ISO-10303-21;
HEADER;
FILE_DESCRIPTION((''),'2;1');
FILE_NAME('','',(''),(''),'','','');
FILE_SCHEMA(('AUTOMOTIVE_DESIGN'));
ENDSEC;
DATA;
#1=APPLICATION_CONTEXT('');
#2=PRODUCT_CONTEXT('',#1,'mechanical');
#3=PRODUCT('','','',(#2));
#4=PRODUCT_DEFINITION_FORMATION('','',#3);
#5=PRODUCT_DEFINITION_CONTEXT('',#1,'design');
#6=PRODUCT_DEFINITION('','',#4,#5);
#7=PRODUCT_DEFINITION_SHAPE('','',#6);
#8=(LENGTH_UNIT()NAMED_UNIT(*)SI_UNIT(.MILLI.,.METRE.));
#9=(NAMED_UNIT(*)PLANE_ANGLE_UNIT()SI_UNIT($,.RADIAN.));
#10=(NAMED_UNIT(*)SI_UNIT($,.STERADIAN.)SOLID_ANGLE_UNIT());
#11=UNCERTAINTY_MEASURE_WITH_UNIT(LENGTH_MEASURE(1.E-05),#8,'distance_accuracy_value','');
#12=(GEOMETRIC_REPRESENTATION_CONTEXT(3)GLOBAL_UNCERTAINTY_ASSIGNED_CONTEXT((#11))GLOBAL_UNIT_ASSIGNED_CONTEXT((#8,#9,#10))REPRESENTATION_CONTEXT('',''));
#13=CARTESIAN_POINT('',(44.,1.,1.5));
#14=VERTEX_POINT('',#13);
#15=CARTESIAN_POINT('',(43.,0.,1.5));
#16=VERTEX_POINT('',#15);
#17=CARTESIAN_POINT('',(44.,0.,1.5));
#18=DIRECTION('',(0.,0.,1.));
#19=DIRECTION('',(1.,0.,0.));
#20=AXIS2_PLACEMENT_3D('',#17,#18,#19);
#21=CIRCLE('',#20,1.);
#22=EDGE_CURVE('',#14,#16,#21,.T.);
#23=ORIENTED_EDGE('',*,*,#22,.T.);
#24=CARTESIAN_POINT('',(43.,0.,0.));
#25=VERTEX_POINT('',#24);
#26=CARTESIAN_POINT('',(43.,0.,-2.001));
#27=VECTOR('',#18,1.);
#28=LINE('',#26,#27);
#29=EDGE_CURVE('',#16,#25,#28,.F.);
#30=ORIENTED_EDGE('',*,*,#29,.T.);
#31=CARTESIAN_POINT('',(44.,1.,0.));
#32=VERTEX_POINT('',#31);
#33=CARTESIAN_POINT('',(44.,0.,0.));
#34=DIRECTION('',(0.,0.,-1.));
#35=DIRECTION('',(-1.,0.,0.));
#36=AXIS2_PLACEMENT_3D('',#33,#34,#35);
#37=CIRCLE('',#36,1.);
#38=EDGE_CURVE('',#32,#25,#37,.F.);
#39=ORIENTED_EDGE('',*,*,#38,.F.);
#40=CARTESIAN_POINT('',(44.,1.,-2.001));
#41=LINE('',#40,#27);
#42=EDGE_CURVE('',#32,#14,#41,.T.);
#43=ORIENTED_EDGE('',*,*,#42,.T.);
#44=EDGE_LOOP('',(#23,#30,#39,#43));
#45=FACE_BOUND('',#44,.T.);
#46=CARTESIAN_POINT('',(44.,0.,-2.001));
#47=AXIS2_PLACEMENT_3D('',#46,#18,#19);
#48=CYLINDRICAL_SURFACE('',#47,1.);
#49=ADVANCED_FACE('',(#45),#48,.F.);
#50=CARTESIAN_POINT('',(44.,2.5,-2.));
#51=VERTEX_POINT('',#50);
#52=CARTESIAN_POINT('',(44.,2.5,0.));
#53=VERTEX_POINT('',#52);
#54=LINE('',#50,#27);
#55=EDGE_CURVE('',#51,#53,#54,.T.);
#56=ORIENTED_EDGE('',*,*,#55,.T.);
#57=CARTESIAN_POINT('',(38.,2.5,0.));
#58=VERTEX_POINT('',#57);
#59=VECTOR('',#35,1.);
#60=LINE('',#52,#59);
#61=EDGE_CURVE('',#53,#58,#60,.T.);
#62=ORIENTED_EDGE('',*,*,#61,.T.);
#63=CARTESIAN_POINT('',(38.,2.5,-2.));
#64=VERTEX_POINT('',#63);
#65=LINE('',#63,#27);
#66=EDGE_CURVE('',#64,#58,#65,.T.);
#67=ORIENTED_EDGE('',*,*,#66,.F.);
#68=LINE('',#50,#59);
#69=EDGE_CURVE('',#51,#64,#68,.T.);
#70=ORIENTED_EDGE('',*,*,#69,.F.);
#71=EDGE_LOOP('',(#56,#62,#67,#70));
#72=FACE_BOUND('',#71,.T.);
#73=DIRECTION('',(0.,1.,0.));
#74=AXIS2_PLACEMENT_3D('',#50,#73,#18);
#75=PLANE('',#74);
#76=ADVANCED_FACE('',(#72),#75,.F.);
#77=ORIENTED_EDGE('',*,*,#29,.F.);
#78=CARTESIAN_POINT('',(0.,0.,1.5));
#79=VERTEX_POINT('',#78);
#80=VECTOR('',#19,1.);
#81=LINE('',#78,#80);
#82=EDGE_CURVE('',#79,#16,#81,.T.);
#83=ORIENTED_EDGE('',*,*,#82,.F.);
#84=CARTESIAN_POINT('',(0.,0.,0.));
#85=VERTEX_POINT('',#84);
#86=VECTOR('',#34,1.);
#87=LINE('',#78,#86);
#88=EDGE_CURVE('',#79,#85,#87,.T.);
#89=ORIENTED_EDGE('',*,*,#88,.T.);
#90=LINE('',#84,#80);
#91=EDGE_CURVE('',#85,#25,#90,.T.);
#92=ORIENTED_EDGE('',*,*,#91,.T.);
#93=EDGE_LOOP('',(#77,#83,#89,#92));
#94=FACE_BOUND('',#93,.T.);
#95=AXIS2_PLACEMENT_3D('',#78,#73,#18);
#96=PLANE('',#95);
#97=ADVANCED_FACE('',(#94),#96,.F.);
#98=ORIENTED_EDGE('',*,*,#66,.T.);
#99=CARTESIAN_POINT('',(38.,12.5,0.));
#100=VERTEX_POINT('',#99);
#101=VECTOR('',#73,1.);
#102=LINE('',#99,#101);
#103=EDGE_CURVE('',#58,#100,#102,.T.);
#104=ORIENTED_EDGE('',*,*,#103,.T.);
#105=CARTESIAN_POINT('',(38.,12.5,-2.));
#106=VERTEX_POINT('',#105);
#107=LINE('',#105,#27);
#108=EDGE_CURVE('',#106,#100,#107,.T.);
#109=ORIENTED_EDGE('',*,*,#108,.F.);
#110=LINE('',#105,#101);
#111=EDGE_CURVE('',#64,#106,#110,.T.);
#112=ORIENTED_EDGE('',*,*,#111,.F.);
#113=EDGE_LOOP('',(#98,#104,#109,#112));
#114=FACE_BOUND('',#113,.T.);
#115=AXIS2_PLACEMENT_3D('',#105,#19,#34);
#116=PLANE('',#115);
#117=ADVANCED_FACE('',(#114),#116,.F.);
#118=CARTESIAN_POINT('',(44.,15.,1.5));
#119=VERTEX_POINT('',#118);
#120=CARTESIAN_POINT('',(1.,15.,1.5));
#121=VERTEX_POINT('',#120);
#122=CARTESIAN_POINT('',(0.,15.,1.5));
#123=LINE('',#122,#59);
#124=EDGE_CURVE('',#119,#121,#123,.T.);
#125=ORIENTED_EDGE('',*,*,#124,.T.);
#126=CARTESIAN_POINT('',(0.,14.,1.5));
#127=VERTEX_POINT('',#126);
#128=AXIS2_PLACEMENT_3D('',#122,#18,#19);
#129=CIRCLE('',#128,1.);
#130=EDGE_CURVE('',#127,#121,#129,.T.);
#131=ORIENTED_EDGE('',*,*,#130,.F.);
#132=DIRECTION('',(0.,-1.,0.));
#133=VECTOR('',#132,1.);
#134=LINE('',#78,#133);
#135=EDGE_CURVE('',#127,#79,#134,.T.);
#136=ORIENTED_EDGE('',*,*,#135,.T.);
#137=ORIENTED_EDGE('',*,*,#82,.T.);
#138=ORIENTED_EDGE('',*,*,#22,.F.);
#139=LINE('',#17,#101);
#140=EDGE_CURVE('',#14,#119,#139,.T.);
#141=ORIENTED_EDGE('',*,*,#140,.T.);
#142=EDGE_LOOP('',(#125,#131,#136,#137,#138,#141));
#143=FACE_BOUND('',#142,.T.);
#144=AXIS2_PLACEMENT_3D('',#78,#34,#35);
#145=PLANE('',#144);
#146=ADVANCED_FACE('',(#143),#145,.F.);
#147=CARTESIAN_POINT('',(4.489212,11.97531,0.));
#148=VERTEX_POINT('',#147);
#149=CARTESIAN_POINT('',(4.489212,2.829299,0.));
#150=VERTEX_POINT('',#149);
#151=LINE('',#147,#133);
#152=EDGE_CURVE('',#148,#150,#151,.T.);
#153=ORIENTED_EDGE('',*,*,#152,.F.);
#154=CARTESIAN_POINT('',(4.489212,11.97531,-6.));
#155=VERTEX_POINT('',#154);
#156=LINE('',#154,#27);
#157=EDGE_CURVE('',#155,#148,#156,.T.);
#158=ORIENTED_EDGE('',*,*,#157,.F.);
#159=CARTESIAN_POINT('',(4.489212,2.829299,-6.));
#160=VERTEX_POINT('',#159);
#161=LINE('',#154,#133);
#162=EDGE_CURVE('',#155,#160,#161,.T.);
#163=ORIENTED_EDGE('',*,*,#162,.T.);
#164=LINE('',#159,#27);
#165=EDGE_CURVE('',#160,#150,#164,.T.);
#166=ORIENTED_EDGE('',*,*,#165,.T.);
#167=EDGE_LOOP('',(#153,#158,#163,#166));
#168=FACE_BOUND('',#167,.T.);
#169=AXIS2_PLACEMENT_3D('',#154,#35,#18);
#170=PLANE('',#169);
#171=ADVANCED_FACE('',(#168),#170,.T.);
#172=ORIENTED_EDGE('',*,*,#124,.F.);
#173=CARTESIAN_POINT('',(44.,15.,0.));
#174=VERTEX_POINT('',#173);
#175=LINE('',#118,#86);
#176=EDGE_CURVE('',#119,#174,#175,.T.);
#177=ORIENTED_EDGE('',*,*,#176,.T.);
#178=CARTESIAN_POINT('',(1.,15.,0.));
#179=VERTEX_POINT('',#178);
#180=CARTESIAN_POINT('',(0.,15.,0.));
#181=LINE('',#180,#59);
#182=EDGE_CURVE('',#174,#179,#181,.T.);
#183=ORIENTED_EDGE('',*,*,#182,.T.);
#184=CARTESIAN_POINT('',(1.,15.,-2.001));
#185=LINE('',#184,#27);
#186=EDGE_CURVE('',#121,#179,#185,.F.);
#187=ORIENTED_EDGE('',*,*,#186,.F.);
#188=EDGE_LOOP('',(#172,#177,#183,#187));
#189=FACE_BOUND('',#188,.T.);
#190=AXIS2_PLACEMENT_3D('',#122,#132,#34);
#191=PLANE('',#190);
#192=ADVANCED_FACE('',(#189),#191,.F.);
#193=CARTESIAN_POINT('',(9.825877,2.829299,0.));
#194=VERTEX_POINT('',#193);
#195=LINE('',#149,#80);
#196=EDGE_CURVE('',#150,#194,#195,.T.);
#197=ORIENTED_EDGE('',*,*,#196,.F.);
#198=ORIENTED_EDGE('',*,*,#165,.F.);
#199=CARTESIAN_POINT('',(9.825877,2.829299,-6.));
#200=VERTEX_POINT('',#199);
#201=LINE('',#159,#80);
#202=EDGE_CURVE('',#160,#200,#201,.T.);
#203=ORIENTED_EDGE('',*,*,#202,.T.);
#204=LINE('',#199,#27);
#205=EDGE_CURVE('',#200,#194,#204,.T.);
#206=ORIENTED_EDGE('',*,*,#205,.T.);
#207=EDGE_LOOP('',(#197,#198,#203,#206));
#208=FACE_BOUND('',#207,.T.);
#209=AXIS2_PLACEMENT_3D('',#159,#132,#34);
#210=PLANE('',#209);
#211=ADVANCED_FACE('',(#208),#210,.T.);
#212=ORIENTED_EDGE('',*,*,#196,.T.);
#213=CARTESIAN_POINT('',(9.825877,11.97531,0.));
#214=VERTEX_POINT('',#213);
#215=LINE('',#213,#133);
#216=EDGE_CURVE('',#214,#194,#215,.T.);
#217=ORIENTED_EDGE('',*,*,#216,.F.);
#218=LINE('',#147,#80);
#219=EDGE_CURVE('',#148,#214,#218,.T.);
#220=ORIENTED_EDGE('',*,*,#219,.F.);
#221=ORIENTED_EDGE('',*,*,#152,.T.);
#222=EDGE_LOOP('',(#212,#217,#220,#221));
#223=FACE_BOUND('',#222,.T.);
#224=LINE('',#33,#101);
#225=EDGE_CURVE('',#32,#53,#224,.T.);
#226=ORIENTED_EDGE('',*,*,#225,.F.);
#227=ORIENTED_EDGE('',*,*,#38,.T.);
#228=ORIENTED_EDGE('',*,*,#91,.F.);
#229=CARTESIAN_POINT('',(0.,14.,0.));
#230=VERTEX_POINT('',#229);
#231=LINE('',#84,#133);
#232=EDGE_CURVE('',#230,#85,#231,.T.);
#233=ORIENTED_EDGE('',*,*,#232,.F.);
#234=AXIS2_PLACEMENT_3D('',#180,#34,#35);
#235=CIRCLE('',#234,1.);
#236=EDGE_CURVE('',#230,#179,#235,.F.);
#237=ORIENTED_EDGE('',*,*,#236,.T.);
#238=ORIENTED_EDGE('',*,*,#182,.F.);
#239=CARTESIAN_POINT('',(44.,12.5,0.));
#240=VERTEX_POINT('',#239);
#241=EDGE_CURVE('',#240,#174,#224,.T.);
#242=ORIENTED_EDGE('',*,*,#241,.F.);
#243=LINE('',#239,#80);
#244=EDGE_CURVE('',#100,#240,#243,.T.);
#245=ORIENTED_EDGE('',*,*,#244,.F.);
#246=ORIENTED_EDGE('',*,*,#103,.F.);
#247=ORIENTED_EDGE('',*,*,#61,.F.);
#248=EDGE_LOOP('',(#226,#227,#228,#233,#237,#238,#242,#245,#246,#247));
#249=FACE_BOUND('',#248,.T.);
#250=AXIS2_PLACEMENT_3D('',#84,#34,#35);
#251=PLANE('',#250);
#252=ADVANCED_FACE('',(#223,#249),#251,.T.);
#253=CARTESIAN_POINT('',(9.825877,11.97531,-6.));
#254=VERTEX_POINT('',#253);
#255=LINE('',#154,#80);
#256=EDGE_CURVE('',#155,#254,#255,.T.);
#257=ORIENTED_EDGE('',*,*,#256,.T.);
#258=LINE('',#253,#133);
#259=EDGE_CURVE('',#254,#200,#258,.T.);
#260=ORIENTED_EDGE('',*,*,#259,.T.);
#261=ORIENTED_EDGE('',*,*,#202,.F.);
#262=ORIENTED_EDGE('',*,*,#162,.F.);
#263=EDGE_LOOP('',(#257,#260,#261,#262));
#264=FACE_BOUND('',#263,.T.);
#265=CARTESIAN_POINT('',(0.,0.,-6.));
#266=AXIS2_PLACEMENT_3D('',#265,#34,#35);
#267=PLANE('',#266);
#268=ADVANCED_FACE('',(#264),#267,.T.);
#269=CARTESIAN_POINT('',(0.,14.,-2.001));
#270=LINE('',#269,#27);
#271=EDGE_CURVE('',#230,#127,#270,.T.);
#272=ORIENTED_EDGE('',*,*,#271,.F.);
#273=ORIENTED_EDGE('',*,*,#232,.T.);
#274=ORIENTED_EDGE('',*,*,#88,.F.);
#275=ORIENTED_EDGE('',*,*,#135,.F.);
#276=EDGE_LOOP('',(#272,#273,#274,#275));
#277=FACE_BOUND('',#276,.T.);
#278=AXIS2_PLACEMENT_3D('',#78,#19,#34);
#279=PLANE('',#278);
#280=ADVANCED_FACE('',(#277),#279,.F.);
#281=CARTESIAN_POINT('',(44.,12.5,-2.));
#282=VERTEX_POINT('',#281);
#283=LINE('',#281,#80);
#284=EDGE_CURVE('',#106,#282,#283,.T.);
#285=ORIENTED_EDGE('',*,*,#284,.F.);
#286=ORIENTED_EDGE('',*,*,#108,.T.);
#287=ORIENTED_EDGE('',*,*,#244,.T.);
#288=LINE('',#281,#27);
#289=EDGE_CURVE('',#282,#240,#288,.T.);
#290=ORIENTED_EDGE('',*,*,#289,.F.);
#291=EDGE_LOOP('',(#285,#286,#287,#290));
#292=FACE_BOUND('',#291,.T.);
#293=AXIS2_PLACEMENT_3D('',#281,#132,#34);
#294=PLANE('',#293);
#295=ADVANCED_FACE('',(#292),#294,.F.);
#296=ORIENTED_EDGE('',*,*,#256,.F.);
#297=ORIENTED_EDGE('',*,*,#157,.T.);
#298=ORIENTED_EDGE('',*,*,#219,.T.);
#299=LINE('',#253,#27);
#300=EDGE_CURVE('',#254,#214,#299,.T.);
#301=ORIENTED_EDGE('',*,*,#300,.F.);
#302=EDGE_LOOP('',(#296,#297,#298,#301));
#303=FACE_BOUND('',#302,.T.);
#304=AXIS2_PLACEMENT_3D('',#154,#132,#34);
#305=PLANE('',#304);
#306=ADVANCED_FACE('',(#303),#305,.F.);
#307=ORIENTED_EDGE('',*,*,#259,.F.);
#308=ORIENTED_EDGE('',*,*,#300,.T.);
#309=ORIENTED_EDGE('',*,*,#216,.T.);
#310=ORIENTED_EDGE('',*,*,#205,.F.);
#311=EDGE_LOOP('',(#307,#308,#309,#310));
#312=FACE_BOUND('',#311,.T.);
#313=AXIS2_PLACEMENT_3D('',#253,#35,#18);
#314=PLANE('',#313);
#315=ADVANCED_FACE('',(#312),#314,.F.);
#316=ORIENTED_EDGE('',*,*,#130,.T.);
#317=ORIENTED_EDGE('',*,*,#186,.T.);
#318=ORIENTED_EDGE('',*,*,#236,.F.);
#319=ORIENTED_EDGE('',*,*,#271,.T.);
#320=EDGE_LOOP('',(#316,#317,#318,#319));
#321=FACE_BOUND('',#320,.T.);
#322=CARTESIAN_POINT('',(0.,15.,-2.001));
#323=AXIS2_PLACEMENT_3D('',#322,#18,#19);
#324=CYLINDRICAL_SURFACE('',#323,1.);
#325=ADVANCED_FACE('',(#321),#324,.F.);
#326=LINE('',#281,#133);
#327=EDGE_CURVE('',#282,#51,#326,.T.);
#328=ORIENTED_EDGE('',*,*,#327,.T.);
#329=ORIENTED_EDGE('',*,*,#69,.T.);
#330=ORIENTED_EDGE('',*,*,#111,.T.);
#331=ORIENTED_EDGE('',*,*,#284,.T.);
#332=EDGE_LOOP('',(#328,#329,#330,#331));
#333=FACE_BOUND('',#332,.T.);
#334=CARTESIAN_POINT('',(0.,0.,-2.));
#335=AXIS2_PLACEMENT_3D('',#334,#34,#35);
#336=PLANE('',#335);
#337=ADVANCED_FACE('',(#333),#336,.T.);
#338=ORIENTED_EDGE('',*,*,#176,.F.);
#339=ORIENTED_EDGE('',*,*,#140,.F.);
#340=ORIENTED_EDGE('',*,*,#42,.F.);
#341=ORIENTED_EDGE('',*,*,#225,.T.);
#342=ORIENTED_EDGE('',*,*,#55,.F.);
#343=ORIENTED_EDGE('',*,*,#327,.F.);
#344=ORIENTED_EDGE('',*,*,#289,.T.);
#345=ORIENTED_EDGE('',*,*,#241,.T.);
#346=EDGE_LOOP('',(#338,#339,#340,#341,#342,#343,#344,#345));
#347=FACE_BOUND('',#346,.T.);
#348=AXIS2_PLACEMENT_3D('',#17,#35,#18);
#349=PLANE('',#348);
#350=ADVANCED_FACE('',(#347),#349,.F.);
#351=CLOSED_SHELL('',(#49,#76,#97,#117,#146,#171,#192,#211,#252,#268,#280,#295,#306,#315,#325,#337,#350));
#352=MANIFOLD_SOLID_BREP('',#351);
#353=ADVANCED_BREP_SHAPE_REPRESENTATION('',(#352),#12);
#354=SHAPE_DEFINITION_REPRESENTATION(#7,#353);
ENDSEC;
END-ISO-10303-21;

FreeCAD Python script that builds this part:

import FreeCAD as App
import Part
import Sketcher
from FreeCAD import Vector
Q = App.Units.Quantity


def add_polygon(sketch, points):
    """Adds a closed chain of lines whose ends are joined by coincident constraints."""
    first, n = sketch.GeometryCount, len(points)
    for a, b in zip(points, points[1:] + points[:1]):
        sketch.addGeometry(Part.LineSegment(App.Vector(*a, 0), App.Vector(*b, 0)), False)
    for i in range(n):
        sketch.addConstraint(Sketcher.Constraint("Coincident", first + i, 2, first + (i + 1) % n, 1))

doc = App.newDocument("Part")
body = doc.addObject("PartDesign::Body", "Body")

# Sketch on XY plane
sketch1 = body.newObject("Sketcher::SketchObject", "Sketch")
sketch1.AttachmentSupport = (doc.getObject("XY_Plane"), [""])
sketch1.MapMode = "FlatFace"
add_polygon(sketch1, [(0, 15), (0, 0), (44, 0), (44, 15)])  # lines 0-3
sketch1.addConstraint([
    Sketcher.Constraint("Vertical", 0),
    Sketcher.Constraint("Horizontal", 1),
    Sketcher.Constraint("Vertical", 2),
    Sketcher.Constraint("Horizontal", 3),
    Sketcher.Constraint("Coincident", 0, 2, -1, 1),
    Sketcher.Constraint("DistanceX", 1, 1, 1, 2, Q("44 mm")),
    Sketcher.Constraint("DistanceY", 0, 2, 0, 1, Q("15 mm")),
])
pad1 = body.newObject("PartDesign::Pad", "Pad")
pad1.Profile = sketch1
pad1.Length = 1.5

# Sketch on XY plane
sketch2 = body.newObject("Sketcher::SketchObject", "Sketch001")
sketch2.AttachmentSupport = (doc.getObject("XY_Plane"), [""])
sketch2.MapMode = "FlatFace"
add_polygon(sketch2, [(44, 12), (44, 2), (38, 2), (38, 12)])  # lines 0-3
sketch2.addConstraint([
    Sketcher.Constraint("Vertical", 0),
    Sketcher.Constraint("Horizontal", 1),
    Sketcher.Constraint("Vertical", 2),
    Sketcher.Constraint("Horizontal", 3),
    Sketcher.Constraint("DistanceX", 1, 2, 1, 1, Q("6 mm")),
    Sketcher.Constraint("DistanceY", 0, 2, 0, 1, Q("10 mm")),
    Sketcher.Constraint("DistanceX", -1, 1, 0, 2, Q("44 mm")),
    Sketcher.Constraint("DistanceY", -1, 1, 0, 2, Q("2.5 mm")),
])
pad2 = body.newObject("PartDesign::Pad", "Pad001")
pad2.Profile = sketch2
pad2.Length = 2
pad2.Reversed = True

# Sketch on XY plane
sketch3 = body.newObject("Sketcher::SketchObject", "Sketch002")
sketch3.AttachmentSupport = (doc.getObject("XY_Plane"), [""])
sketch3.MapMode = "FlatFace"
sketch3.AttachmentOffset = App.Placement(Vector(0, 0, 1.5), App.Rotation())
sketch3.addGeometry(Part.Circle(Vector(44, 0, 0), Vector(0, 0, 1), 1), False)
sketch3.addConstraint([
    Sketcher.Constraint("PointOnObject", 0, 3, -1),
    Sketcher.Constraint("Diameter", 0, Q("2 mm")),
    Sketcher.Constraint("DistanceX", -1, 1, 0, 3, Q("44 mm")),
])
pocket1 = body.newObject("PartDesign::Pocket", "Pocket")
pocket1.Profile = sketch3
pocket1.Type = "UpToFirst"

# Sketch on XY plane
sketch4 = body.newObject("Sketcher::SketchObject", "Sketch003")
sketch4.AttachmentSupport = (doc.getObject("XY_Plane"), [""])
sketch4.MapMode = "FlatFace"
sketch4.AttachmentOffset = App.Placement(Vector(0, 0, 1.5), App.Rotation())
sketch4.addGeometry(Part.Circle(Vector(0, 15, 0), Vector(0, 0, 1), 1), False)
sketch4.addConstraint([
    Sketcher.Constraint("PointOnObject", 0, 3, -2),
    Sketcher.Constraint("Diameter", 0, Q("2 mm")),
    Sketcher.Constraint("DistanceY", -1, 1, 0, 3, Q("15 mm")),
])
pocket2 = body.newObject("PartDesign::Pocket", "Pocket001")
pocket2.Profile = sketch4
pocket2.Type = "UpToFirst"

# Sketch on XY plane
sketch5 = body.newObject("Sketcher::SketchObject", "Sketch004")
sketch5.AttachmentSupport = (doc.getObject("XY_Plane"), [""])
sketch5.MapMode = "FlatFace"
add_polygon(sketch5, [(4, 3), (4, 12), (10, 12), (10, 3)])  # lines 0-3
sketch5.addConstraint([
    Sketcher.Constraint("Vertical", 0),
    Sketcher.Constraint("Horizontal", 1),
    Sketcher.Constraint("Vertical", 2),
    Sketcher.Constraint("Horizontal", 3),
    Sketcher.Constraint("DistanceY", 0, 1, 0, 2, Q("9.146012 mm")),
    Sketcher.Constraint("DistanceY", -1, 1, 2, 2, Q("2.829299 mm")),
    Sketcher.Constraint("DistanceX", 1, 1, 1, 2, Q("5.336665 mm")),
    Sketcher.Constraint("DistanceX", -1, 1, 0, 2, Q("4.489212 mm")),
])
pad3 = body.newObject("PartDesign::Pad", "Pad002")
pad3.Profile = sketch5
pad3.Length = 6
pad3.Reversed = True

doc.recompute()
